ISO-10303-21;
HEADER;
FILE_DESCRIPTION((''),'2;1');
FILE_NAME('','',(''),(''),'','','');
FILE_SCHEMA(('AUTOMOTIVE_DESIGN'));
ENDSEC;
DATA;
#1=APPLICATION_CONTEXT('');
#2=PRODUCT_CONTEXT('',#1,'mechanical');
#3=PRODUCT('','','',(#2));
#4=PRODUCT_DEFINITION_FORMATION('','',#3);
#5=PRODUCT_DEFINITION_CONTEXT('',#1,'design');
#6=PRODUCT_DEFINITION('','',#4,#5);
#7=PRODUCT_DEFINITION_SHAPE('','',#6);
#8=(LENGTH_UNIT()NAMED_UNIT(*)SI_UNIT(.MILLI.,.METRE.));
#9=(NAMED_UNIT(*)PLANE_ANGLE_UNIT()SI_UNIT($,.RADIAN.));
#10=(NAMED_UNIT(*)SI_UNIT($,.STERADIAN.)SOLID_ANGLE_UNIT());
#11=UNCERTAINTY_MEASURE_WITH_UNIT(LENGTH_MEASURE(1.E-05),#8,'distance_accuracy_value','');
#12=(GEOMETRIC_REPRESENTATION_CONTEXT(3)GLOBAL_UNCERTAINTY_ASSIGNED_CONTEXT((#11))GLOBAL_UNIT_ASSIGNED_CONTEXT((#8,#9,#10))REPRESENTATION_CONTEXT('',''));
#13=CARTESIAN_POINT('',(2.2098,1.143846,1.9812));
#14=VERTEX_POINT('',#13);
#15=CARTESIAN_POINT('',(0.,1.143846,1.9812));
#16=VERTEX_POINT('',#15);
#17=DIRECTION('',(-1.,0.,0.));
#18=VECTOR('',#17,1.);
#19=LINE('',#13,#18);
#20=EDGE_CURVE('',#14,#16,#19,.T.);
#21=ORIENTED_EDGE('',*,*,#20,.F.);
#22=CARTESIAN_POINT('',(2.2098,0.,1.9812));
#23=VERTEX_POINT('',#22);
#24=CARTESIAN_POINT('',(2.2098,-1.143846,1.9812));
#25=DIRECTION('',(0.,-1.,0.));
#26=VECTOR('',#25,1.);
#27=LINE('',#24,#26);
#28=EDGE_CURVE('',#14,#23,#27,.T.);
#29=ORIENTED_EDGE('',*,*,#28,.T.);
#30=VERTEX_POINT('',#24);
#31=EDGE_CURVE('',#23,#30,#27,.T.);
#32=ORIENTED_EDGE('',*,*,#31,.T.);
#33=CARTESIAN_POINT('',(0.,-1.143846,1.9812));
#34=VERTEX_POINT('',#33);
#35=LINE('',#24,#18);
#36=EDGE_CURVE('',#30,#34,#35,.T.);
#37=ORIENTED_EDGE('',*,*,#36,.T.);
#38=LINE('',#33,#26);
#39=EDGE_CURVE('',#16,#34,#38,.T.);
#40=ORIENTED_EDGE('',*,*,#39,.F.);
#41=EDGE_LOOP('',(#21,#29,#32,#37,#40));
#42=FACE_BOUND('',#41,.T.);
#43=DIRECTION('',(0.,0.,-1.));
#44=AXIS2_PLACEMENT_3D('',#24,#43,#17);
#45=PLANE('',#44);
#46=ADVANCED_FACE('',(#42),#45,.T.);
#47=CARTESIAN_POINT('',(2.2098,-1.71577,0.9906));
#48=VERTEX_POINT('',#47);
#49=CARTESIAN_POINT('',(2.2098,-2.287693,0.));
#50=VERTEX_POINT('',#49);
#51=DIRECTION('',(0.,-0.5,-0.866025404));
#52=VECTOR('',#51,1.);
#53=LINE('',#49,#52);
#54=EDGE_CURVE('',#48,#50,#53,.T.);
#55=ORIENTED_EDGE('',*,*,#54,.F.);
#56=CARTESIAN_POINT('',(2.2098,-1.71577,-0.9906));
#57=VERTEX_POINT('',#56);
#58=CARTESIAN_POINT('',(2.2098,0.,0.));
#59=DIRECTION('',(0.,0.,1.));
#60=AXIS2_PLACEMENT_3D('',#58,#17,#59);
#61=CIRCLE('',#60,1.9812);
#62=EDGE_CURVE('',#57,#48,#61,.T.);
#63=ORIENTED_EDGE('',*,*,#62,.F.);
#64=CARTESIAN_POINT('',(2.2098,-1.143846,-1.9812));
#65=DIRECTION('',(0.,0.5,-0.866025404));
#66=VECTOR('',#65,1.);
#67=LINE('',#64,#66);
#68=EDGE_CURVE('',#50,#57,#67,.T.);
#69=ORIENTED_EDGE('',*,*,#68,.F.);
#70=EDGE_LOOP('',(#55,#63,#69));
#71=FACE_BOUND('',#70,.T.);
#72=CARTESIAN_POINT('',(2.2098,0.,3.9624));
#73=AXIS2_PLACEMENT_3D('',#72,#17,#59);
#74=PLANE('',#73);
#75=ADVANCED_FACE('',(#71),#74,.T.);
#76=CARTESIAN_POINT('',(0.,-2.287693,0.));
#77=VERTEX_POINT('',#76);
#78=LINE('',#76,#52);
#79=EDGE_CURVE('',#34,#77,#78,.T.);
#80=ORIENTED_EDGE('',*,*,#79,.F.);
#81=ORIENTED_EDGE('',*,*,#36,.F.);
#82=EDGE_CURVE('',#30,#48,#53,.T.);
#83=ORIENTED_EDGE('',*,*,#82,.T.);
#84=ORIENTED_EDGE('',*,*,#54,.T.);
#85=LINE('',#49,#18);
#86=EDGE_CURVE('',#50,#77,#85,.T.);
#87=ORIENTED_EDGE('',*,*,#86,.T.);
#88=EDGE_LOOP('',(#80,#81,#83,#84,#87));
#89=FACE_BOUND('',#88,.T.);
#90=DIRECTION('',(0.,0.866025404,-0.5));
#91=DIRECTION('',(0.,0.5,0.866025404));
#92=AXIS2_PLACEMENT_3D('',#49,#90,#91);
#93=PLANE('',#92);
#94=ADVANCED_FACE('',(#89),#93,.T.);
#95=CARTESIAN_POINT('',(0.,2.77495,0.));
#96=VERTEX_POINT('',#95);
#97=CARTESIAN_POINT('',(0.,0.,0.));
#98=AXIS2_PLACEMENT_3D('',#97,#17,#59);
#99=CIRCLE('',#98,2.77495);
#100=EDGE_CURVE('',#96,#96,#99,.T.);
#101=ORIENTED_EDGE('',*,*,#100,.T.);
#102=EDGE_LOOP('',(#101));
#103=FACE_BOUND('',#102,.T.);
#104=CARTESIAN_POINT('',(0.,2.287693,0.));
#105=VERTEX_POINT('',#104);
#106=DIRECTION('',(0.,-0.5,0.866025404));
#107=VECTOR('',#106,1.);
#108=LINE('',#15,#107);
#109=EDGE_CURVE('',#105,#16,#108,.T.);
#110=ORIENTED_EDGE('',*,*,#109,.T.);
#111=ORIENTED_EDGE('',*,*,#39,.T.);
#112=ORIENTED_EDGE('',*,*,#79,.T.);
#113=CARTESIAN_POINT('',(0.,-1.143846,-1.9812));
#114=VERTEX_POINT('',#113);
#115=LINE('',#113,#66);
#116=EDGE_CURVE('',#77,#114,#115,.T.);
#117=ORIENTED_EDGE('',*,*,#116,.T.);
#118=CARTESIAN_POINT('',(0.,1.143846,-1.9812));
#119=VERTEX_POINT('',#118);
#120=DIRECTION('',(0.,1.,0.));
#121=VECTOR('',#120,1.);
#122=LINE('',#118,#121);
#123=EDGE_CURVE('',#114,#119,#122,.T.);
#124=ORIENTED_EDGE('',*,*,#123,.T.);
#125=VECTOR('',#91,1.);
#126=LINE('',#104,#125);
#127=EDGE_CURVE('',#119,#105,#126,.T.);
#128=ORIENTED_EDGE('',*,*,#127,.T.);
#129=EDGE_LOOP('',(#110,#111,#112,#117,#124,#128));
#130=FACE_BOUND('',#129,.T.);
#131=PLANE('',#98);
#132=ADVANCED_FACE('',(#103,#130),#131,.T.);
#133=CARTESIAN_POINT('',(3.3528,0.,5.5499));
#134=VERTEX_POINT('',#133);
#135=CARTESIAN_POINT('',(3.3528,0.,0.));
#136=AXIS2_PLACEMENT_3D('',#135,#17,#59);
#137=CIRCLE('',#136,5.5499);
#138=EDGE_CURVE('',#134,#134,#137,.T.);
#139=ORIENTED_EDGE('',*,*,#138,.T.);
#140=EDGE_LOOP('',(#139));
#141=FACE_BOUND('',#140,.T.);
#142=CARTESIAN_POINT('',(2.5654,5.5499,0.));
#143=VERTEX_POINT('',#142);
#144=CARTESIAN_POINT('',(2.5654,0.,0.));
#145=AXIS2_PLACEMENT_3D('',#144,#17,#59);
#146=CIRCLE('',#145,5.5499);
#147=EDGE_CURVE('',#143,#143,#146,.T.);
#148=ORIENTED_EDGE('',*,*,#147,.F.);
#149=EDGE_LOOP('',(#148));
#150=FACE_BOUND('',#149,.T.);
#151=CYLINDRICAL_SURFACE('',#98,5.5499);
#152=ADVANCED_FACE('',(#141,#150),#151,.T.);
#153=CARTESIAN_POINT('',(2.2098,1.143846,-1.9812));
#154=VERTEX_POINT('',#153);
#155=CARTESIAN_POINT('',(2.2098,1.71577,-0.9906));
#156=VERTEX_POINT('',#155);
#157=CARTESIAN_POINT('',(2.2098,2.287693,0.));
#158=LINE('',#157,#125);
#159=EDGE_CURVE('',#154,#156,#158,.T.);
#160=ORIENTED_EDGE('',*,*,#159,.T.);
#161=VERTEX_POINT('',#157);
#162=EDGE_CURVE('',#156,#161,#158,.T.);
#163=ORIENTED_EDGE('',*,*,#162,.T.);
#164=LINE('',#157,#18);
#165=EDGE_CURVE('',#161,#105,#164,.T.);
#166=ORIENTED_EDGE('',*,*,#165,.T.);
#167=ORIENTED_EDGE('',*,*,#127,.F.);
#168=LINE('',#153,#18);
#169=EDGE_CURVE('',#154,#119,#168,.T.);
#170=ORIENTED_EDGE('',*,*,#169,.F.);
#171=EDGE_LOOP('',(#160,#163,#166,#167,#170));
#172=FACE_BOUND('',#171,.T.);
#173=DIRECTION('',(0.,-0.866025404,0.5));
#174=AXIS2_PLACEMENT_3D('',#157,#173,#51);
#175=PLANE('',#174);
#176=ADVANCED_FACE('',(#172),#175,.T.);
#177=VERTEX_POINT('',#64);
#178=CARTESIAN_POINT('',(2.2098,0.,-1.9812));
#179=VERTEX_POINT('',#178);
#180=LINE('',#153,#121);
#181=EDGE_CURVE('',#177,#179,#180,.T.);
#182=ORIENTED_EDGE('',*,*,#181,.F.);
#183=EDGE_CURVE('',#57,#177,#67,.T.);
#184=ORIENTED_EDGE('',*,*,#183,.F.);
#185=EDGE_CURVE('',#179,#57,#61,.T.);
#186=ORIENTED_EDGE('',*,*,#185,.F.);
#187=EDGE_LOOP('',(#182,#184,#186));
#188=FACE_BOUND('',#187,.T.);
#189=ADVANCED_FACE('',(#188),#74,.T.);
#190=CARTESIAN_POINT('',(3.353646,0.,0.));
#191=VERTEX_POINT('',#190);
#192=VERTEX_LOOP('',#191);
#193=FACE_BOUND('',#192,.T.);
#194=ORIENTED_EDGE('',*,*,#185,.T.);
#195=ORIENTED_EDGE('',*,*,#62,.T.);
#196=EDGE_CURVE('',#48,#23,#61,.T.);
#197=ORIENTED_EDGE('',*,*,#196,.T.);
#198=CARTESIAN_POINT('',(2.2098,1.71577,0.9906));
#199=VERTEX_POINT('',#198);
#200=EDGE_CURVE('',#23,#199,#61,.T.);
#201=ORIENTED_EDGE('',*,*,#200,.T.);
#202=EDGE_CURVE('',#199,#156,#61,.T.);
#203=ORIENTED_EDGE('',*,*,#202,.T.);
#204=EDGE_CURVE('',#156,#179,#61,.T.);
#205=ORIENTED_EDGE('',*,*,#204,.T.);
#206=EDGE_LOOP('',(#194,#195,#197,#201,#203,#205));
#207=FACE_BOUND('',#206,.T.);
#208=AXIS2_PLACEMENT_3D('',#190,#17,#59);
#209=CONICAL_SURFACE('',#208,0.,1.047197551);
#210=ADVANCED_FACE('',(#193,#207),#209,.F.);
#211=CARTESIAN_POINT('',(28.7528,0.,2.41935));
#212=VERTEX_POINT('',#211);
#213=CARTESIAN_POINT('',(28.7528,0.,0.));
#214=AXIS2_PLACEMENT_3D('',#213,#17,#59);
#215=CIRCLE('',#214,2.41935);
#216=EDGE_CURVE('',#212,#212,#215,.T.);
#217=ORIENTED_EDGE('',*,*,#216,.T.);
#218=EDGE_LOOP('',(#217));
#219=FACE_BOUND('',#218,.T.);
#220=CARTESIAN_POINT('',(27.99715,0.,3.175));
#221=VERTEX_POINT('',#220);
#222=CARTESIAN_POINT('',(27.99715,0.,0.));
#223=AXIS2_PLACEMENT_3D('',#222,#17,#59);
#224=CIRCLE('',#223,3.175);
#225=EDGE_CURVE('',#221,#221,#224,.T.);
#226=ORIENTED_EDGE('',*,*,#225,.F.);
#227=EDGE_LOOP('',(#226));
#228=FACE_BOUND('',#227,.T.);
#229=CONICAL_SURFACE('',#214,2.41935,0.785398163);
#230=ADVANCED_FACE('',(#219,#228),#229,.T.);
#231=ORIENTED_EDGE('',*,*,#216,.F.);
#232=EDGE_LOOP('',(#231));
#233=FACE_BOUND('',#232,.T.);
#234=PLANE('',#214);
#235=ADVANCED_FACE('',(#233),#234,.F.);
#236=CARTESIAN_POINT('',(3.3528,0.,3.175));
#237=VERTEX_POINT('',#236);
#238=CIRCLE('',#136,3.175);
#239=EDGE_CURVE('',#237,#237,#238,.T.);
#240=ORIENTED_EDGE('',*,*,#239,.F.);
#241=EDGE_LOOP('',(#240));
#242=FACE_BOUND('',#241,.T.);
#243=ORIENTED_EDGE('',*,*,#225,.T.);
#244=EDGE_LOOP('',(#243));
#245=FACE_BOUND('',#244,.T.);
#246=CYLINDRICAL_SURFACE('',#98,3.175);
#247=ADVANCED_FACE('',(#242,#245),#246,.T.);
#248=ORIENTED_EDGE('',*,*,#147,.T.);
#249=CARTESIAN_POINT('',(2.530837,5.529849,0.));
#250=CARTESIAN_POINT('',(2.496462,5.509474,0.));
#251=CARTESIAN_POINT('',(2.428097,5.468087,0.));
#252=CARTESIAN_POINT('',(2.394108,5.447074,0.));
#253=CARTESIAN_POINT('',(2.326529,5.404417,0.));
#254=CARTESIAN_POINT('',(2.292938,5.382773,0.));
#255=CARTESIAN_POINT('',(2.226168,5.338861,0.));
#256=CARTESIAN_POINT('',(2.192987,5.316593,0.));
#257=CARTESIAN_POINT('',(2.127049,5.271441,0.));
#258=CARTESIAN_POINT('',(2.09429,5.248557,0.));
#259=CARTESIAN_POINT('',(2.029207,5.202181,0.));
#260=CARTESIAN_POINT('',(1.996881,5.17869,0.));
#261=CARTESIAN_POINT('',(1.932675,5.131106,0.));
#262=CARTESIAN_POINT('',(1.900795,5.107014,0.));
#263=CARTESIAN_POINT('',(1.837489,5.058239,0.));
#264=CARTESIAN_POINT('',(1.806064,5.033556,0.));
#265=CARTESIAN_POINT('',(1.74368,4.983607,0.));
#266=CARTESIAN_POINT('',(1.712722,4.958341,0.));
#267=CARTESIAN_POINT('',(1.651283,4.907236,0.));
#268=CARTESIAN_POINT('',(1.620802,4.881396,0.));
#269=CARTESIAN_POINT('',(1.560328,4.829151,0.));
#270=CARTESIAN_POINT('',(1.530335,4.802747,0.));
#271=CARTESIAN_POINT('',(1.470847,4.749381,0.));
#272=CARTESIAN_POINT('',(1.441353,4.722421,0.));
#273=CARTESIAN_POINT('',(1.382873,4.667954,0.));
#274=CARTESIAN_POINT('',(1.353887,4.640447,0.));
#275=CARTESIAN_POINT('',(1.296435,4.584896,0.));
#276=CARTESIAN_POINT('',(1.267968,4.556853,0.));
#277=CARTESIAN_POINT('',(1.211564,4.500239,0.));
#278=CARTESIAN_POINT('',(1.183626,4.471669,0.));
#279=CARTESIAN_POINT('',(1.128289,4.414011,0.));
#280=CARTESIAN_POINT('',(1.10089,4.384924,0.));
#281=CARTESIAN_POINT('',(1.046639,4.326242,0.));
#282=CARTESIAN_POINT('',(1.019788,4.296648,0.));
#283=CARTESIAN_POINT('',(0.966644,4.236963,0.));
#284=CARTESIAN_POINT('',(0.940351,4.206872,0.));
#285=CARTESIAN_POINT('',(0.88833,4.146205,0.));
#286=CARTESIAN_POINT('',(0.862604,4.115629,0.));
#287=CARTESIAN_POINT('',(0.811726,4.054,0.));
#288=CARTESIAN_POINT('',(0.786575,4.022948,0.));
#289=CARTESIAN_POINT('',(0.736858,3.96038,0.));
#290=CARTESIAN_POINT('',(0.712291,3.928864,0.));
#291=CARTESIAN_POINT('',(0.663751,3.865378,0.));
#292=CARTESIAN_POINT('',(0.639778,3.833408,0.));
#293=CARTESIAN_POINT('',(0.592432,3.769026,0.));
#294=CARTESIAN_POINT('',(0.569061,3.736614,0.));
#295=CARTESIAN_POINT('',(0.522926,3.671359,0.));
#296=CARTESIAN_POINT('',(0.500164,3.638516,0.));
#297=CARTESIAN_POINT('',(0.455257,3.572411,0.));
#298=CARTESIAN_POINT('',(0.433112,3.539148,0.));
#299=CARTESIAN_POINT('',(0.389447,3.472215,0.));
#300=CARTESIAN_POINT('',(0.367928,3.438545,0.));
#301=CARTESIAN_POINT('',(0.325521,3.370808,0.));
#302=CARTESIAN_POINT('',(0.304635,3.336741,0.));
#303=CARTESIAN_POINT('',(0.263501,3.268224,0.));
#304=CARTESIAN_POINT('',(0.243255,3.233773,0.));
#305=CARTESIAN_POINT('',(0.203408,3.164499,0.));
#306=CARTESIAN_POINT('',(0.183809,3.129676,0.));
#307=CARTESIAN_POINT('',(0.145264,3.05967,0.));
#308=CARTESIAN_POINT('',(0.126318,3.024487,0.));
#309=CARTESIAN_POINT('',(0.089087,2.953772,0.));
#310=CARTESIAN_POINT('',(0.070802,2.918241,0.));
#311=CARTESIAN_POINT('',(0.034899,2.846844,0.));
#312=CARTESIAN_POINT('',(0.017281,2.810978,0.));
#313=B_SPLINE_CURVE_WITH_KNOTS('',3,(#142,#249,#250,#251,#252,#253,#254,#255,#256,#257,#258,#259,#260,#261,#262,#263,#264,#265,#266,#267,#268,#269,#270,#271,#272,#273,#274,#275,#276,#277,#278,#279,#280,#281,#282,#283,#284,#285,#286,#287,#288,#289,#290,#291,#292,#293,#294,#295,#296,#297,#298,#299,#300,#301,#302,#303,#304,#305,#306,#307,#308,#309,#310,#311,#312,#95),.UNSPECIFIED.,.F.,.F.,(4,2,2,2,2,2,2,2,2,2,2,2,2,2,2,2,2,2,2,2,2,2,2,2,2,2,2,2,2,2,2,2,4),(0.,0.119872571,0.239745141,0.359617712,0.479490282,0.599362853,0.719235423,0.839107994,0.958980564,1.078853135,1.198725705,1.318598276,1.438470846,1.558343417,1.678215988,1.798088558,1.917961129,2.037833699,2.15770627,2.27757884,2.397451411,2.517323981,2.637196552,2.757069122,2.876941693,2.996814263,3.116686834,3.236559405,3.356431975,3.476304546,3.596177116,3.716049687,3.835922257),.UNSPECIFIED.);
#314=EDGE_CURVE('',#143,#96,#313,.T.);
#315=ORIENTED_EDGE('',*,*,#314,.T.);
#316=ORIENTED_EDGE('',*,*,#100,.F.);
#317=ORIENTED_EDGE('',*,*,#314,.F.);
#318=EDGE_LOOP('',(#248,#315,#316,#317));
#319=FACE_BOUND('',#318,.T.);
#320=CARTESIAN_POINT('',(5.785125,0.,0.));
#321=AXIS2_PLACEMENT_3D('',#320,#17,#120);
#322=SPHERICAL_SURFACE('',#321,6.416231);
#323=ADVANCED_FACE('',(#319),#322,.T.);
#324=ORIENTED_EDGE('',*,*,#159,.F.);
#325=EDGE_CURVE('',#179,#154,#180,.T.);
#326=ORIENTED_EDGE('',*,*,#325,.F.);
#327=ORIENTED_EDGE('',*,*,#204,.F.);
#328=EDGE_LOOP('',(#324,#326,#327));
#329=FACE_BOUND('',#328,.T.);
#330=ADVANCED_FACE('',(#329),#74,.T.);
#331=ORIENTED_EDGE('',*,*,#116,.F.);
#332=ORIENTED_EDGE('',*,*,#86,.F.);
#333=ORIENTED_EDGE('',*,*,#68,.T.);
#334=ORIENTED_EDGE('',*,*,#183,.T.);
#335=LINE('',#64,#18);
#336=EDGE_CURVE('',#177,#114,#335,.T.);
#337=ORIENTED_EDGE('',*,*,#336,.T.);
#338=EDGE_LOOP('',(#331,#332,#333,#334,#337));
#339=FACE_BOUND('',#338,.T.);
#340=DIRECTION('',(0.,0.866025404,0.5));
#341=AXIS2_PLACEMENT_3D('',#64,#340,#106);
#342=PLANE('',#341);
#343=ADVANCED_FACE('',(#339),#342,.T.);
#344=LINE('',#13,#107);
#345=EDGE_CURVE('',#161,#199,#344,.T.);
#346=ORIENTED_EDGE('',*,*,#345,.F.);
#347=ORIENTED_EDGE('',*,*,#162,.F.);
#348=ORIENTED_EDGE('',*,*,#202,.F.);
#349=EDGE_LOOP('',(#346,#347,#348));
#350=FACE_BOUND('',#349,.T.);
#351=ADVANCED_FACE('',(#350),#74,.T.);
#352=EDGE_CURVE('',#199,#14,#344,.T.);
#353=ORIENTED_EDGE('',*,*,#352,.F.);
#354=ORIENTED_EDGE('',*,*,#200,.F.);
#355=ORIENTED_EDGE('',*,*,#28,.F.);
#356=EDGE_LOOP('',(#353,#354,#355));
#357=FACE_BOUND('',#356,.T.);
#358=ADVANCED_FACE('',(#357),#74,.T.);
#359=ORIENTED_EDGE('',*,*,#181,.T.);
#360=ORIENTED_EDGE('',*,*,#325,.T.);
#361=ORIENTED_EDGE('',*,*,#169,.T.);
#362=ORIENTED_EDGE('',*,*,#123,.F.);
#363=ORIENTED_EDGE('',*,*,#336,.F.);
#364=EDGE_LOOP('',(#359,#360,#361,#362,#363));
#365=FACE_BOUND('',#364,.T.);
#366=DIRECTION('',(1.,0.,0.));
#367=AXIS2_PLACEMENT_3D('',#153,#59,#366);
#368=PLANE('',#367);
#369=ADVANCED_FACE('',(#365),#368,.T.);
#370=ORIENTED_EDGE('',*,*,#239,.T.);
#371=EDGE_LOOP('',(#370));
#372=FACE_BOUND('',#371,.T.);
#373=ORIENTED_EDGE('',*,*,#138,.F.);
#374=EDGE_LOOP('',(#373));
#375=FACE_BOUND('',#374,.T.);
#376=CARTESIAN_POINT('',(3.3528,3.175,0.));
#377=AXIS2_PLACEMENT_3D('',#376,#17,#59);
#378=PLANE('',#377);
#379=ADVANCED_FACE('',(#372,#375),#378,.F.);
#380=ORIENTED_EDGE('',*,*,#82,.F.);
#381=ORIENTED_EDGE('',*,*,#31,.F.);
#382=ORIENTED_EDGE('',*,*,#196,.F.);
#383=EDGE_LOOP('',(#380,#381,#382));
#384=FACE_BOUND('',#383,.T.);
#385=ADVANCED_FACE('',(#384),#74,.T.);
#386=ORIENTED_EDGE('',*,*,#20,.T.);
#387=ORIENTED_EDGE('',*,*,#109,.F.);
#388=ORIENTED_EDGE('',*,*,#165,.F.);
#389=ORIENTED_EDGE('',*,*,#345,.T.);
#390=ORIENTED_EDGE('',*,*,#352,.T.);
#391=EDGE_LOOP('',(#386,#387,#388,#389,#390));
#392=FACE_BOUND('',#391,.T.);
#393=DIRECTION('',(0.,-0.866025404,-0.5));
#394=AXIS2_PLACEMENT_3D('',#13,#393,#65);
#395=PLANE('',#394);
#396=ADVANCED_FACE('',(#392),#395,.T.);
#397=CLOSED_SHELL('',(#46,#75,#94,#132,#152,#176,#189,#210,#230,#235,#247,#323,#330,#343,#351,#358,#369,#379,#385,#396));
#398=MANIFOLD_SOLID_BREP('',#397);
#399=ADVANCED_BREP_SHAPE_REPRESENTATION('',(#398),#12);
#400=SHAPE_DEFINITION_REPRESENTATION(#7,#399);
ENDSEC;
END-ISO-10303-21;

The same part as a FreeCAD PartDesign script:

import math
import FreeCAD as App
import Part
import Sketcher
Q = App.Units.Quantity


def add_polygon(sketch, points):
    """Adds a closed chain of lines whose ends are joined by coincident constraints."""
    first, n = sketch.GeometryCount, len(points)
    for a, b in zip(points, points[1:] + points[:1]):
        sketch.addGeometry(Part.LineSegment(App.Vector(*a, 0), App.Vector(*b, 0)), False)
    for i in range(n):
        sketch.addConstraint(Sketcher.Constraint("Coincident", first + i, 2, first + (i + 1) % n, 1))

doc = App.newDocument("Part")
body = doc.addObject("PartDesign::Body", "Body")

# Sketch on XY plane
sketch1 = body.newObject("Sketcher::SketchObject", "Sketch")
sketch1.AttachmentSupport = (doc.getObject("XY_Plane"), [""])
sketch1.MapMode = "FlatFace"
sketch1.addGeometry(Part.LineSegment(App.Vector(28.8, 0, 0), App.Vector(28.8, 2.4, 0)), False)
sketch1.addGeometry(Part.LineSegment(App.Vector(28.8, 2.4, 0), App.Vector(28, 3.2, 0)), False)
sketch1.addGeometry(Part.LineSegment(App.Vector(28, 3.2, 0), App.Vector(3.4, 3.2, 0)), False)
sketch1.addGeometry(Part.LineSegment(App.Vector(3.4, 3.2, 0), App.Vector(3.4, 5.5, 0)), False)
sketch1.addGeometry(Part.LineSegment(App.Vector(3.4, 5.5, 0), App.Vector(2.6, 5.5, 0)), False)
sketch1.addGeometry(Part.ArcOfCircle(Part.Circle(App.Vector(5.8, 0, 0), App.Vector(0, 0, 1), 6.4), math.radians(120), math.radians(154)), False)
sketch1.addGeometry(Part.LineSegment(App.Vector(0, 2.8, 0), App.Vector(0, 0, 0)), False)
sketch1.addGeometry(Part.LineSegment(App.Vector(0, 0, 0), App.Vector(28.8, 0, 0)), False)
sketch1.addConstraint(Sketcher.Constraint("Coincident", 0, 2, 1, 1))
sketch1.addConstraint(Sketcher.Constraint("Coincident", 1, 2, 2, 1))
sketch1.addConstraint(Sketcher.Constraint("Coincident", 2, 2, 3, 1))
sketch1.addConstraint(Sketcher.Constraint("Coincident", 3, 2, 4, 1))
sketch1.addConstraint(Sketcher.Constraint("Coincident", 4, 2, 5, 1))
sketch1.addConstraint(Sketcher.Constraint("Coincident", 5, 2, 6, 1))
sketch1.addConstraint(Sketcher.Constraint("Coincident", 6, 2, 7, 1))
sketch1.addConstraint(Sketcher.Constraint("Coincident", 7, 2, 0, 1))
sketch1.addConstraint(Sketcher.Constraint("Vertical", 0))
sketch1.addConstraint(Sketcher.Constraint("Horizontal", 2))
sketch1.addConstraint(Sketcher.Constraint("Vertical", 3))
sketch1.addConstraint(Sketcher.Constraint("Horizontal", 4))
sketch1.addConstraint(Sketcher.Constraint("Vertical", 6))
sketch1.addConstraint(Sketcher.Constraint("Horizontal", 7))
sketch1.addConstraint(Sketcher.Constraint("Coincident", 6, 2, -1, 1))
sketch1.addConstraint(Sketcher.Constraint("PointOnObject", 5, 3, -1))
sketch1.addConstraint(Sketcher.Constraint("Angle", 1, Q("135 deg")))
sketch1.addConstraint(Sketcher.Constraint("DistanceX", 2, 2, 0, 2, Q("1 in")))
sketch1.addConstraint(Sketcher.Constraint("DistanceX", 4, 2, 4, 1, Q("0.031 in")))
sketch1.addConstraint(Sketcher.Constraint("DistanceX", 7, 1, 7, 2, Q("1.132 in")))
sketch1.addConstraint(Sketcher.Constraint("DistanceY", 3, 1, 3, 2, Q("0.0935 in")))
sketch1.addConstraint(Sketcher.Constraint("DistanceY", -1, 1, 1, 2, Q("0.125 in")))
sketch1.addConstraint(Sketcher.Constraint("Radius", 5, Q("6.416231 mm")))
sketch1.addConstraint(Sketcher.Constraint("DistanceX", 2, 2, 2, 1, Q("24.64435 mm")))
revolution = body.newObject("PartDesign::Revolution", "Revolution")
revolution.Profile = sketch1
revolution.ReferenceAxis = (sketch1, ["H_Axis"])
revolution.Angle = 360

# Sketch on XY plane
sketch2 = body.newObject("Sketcher::SketchObject", "Sketch001")
sketch2.AttachmentSupport = (doc.getObject("XY_Plane"), [""])
sketch2.MapMode = "FlatFace"
add_polygon(sketch2, [(2.2, 2), (0, 2), (0, 0), (3.4, 0)])  # lines 0-3
sketch2.addConstraint(Sketcher.Constraint("Horizontal", 0))
sketch2.addConstraint(Sketcher.Constraint("Vertical", 1))
sketch2.addConstraint(Sketcher.Constraint("Horizontal", 2))
sketch2.addConstraint(Sketcher.Constraint("Coincident", 1, 2, -1, 1))
sketch2.addConstraint(Sketcher.Constraint("Angle", 3, Q("120 deg")))
sketch2.addConstraint(Sketcher.Constraint("DistanceX", 0, 2, 0, 1, Q("0.087 in")))
sketch2.addConstraint(Sketcher.Constraint("DistanceY", 1, 2, 1, 1, Q("0.078 in")))
groove = body.newObject("PartDesign::Groove", "Groove")
groove.Profile = sketch2
groove.ReferenceAxis = (sketch2, ["H_Axis"])
groove.Angle = 360

# Sketch on YZ plane
sketch3 = body.newObject("Sketcher::SketchObject", "Sketch002")
sketch3.AttachmentSupport = (doc.getObject("YZ_Plane"), [""])
sketch3.MapMode = "FlatFace"
add_polygon(sketch3, [(1.1, 2), (-1.1, 2), (-2.3, 0), (-1.1, -2), (1.1, -2), (2.3, 0)])  # lines 0-5
sketch3.addConstraint(Sketcher.Constraint("Horizontal", 0))
sketch3.addConstraint(Sketcher.Constraint("Horizontal", 3))
sketch3.addConstraint(Sketcher.Constraint("Symmetric", 0, 2, 3, 2, -1, 1))
sketch3.addConstraint(Sketcher.Constraint("Symmetric", 1, 2, 4, 2, -1, 1))
sketch3.addConstraint(Sketcher.Constraint("PointOnObject", 1, 2, -1))
sketch3.addConstraint(Sketcher.Constraint("Parallel", 2, 5))
sketch3.addConstraint(Sketcher.Constraint("Vertical", 0, 2, 2, 2))
sketch3.addConstraint(Sketcher.Constraint("Angle", 1, Q("-120 deg")))
sketch3.addConstraint(Sketcher.Constraint("DistanceY", -1, 1, 0, 2, Q("0.078 in")))
sketch3.addConstraint(Sketcher.Constraint("DistanceX", 1, 2, 3, 2, Q("0.1351 in")))
pocket1 = body.newObject("PartDesign::Pocket", "Pocket")
pocket1.Profile = sketch3
pocket1.Length = Q("0.087 in")
pocket1.Reversed = True

doc.recompute()
